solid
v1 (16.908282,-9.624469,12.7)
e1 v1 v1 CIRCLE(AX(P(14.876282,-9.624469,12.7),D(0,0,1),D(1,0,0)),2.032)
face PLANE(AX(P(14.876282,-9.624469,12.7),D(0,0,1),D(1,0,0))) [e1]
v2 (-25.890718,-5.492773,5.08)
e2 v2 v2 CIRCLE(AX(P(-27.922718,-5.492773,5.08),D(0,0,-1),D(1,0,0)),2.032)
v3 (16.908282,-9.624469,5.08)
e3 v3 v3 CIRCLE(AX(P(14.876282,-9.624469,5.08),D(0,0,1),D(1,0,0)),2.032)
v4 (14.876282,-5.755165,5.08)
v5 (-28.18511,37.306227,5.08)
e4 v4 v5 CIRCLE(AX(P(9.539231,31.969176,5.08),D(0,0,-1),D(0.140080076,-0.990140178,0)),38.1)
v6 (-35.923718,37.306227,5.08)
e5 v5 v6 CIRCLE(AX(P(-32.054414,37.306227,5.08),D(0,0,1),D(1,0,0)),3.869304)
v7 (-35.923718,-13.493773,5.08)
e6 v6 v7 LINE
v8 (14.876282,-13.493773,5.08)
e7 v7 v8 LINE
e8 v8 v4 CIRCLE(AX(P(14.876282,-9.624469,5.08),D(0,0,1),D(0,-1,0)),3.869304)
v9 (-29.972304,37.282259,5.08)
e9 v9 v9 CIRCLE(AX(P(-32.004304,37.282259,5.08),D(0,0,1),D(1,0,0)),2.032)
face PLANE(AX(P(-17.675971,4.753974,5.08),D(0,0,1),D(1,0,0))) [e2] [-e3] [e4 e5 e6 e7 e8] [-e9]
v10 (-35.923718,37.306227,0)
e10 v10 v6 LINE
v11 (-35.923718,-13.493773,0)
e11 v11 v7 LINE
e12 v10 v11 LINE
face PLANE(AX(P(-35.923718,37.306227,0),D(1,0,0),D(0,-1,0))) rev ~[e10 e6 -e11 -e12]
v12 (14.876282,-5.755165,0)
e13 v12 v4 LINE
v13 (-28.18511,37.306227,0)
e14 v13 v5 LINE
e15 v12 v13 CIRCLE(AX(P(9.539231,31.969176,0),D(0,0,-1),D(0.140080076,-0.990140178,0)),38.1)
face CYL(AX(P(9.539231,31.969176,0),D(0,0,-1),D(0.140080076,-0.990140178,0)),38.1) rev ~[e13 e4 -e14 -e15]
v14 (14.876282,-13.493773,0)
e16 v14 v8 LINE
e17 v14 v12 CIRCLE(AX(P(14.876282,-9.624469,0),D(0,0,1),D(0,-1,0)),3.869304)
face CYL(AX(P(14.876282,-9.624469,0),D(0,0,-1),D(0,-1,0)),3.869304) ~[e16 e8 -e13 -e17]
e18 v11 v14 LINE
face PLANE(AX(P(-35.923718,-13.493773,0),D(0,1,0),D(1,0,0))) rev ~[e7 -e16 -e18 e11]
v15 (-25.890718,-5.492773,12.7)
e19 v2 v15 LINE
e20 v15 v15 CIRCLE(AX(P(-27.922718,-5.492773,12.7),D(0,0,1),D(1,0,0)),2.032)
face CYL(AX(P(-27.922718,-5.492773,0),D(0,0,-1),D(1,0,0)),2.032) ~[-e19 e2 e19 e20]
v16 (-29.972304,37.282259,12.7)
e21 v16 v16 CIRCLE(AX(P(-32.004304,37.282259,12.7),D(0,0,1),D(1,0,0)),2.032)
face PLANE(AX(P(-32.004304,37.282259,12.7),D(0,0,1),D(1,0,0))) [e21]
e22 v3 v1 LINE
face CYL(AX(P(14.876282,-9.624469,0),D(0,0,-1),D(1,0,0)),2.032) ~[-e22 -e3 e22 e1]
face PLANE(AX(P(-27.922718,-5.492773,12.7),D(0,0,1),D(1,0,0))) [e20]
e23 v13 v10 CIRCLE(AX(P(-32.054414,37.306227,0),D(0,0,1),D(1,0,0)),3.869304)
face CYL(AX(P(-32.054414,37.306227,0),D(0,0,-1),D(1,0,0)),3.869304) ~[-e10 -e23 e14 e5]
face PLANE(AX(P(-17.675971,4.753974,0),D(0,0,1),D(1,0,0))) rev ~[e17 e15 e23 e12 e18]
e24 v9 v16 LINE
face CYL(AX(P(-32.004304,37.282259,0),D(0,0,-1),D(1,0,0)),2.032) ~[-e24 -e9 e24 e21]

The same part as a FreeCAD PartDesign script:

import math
import FreeCAD as App
import Part
import Sketcher

V = App.Vector
Q = App.Units.Quantity

doc = App.newDocument("Part")
body = doc.addObject("PartDesign::Body", "Body")

sketch1 = doc.addObject("Sketcher::SketchObject", "Sketch")
body.addObject(sketch1)
sketch1.AttachmentSupport = (doc.XY_Plane, [""])
sketch1.MapMode = "FlatFace"
sketch1.addGeometry([
    Part.ArcOfCircle(Part.Circle(V(-32.1, 37.3, 0), V(0, 0, 1), 3.9), math.radians(0), math.radians(180)),
    Part.LineSegment(V(-35.9, 37.3, 0), V(-35.9, -13.5, 0)),
    Part.LineSegment(V(-35.9, -13.5, 0), V(14.9, -13.5, 0)),
    Part.ArcOfCircle(Part.Circle(V(14.9, -9.6, 0), V(0, 0, 1), 3.9), math.radians(-90), math.radians(90)),
    Part.ArcOfCircle(Part.Circle(V(9.5, 32, 0), V(0, 0, 1), 38.1), math.radians(172), math.radians(278)),
    Part.Circle(V(-27.9, -5.5, 0), V(0, 0, 1), 2),
    Part.Circle(V(14.9, -9.6, 0), V(0, 0, 1), 2),
    Part.Circle(V(-32, 37.3, 0), V(0, 0, 1), 2),
], False)
sketch1.addConstraint([
    Sketcher.Constraint("Tangent", 0, 2, 1, 1),
    Sketcher.Constraint("Coincident", 1, 2, 2, 1),
    Sketcher.Constraint("Tangent", 2, 2, 3, 1),
    Sketcher.Constraint("Coincident", 3, 2, 4, 2),
    Sketcher.Constraint("Coincident", 4, 1, 0, 1),
    Sketcher.Constraint("Vertical", 1),
    Sketcher.Constraint("Horizontal", 2),
    Sketcher.Constraint("Coincident", 6, 3, 3, 3),
    Sketcher.Constraint("Equal", 0, 3),
    Sketcher.Constraint("Equal", 5, 6),
    Sketcher.Constraint("Equal", 6, 7),
    Sketcher.Constraint("Horizontal", 0, 2, 4, 1),
    Sketcher.Constraint("Vertical", 2, 2, 3, 2),
    Sketcher.Constraint("Equal", 2, 1),
    Sketcher.Constraint("Radius", 4, Q("1.5 in")),
    Sketcher.Constraint("Diameter", 5, Q("0.16 in")),
    Sketcher.Constraint("DistanceX", 2, 1, 2, 2, Q("2 in")),
    Sketcher.Constraint("DistanceY", 5, 3, 0, 3, Q("1.685 in")),
    Sketcher.Constraint("DistanceX", 5, 3, 3, 3, Q("1.685 in")),
    Sketcher.Constraint("Radius", 0, Q("3.869304 mm")),
    Sketcher.Constraint("DistanceY", 3, 3, -1, 1, Q("9.624469 mm")),
    Sketcher.Constraint("DistanceX", -1, 1, 4, 3, Q("9.539231 mm")),
    Sketcher.Constraint("DistanceY", -1, 1, 7, 3, Q("37.282259 mm")),
    Sketcher.Constraint("DistanceX", 0, 3, 7, 3, Q("0.05011 mm")),
])
pad1 = doc.addObject("PartDesign::Pad", "Pad")
body.addObject(pad1)
pad1.Profile = sketch1
pad1.Length = Q("0.2 in")

sketch2 = doc.addObject("Sketcher::SketchObject", "Sketch001")
body.addObject(sketch2)
sketch2.AttachmentSupport = (doc.XY_Plane, [""])
sketch2.MapMode = "FlatFace"
sketch2.addGeometry([
    Part.Circle(V(-27.9, -5.5, 0), V(0, 0, 1), 2),
    Part.Circle(V(-32, 37.3, 0), V(0, 0, 1), 2),
    Part.Circle(V(14.9, -9.6, 0), V(0, 0, 1), 2),
], False)
sketch2.addConstraint([
    Sketcher.Constraint("Equal", 0, 1),
    Sketcher.Constraint("Equal", 1, 2),
    Sketcher.Constraint("Diameter", 0, Q("0.16 in")),
    Sketcher.Constraint("DistanceX", 0, 3, 2, 3, Q("1.685 in")),
    Sketcher.Constraint("DistanceY", -1, 1, 1, 3, Q("37.282259 mm")),
    Sketcher.Constraint("DistanceY", 2, 3, -1, 1, Q("9.624469 mm")),
    Sketcher.Constraint("DistanceX", 0, 3, -1, 1, Q("27.922718 mm")),
    Sketcher.Constraint("DistanceY", 0, 3, -1, 1, Q("5.492773 mm")),
    Sketcher.Constraint("DistanceX", 1, 3, -1, 1, Q("32.004304 mm")),
])
pad2 = doc.addObject("PartDesign::Pad", "Pad001")
body.addObject(pad2)
pad2.Profile = sketch2
pad2.Length = Q("0.5 in")

doc.recompute()
